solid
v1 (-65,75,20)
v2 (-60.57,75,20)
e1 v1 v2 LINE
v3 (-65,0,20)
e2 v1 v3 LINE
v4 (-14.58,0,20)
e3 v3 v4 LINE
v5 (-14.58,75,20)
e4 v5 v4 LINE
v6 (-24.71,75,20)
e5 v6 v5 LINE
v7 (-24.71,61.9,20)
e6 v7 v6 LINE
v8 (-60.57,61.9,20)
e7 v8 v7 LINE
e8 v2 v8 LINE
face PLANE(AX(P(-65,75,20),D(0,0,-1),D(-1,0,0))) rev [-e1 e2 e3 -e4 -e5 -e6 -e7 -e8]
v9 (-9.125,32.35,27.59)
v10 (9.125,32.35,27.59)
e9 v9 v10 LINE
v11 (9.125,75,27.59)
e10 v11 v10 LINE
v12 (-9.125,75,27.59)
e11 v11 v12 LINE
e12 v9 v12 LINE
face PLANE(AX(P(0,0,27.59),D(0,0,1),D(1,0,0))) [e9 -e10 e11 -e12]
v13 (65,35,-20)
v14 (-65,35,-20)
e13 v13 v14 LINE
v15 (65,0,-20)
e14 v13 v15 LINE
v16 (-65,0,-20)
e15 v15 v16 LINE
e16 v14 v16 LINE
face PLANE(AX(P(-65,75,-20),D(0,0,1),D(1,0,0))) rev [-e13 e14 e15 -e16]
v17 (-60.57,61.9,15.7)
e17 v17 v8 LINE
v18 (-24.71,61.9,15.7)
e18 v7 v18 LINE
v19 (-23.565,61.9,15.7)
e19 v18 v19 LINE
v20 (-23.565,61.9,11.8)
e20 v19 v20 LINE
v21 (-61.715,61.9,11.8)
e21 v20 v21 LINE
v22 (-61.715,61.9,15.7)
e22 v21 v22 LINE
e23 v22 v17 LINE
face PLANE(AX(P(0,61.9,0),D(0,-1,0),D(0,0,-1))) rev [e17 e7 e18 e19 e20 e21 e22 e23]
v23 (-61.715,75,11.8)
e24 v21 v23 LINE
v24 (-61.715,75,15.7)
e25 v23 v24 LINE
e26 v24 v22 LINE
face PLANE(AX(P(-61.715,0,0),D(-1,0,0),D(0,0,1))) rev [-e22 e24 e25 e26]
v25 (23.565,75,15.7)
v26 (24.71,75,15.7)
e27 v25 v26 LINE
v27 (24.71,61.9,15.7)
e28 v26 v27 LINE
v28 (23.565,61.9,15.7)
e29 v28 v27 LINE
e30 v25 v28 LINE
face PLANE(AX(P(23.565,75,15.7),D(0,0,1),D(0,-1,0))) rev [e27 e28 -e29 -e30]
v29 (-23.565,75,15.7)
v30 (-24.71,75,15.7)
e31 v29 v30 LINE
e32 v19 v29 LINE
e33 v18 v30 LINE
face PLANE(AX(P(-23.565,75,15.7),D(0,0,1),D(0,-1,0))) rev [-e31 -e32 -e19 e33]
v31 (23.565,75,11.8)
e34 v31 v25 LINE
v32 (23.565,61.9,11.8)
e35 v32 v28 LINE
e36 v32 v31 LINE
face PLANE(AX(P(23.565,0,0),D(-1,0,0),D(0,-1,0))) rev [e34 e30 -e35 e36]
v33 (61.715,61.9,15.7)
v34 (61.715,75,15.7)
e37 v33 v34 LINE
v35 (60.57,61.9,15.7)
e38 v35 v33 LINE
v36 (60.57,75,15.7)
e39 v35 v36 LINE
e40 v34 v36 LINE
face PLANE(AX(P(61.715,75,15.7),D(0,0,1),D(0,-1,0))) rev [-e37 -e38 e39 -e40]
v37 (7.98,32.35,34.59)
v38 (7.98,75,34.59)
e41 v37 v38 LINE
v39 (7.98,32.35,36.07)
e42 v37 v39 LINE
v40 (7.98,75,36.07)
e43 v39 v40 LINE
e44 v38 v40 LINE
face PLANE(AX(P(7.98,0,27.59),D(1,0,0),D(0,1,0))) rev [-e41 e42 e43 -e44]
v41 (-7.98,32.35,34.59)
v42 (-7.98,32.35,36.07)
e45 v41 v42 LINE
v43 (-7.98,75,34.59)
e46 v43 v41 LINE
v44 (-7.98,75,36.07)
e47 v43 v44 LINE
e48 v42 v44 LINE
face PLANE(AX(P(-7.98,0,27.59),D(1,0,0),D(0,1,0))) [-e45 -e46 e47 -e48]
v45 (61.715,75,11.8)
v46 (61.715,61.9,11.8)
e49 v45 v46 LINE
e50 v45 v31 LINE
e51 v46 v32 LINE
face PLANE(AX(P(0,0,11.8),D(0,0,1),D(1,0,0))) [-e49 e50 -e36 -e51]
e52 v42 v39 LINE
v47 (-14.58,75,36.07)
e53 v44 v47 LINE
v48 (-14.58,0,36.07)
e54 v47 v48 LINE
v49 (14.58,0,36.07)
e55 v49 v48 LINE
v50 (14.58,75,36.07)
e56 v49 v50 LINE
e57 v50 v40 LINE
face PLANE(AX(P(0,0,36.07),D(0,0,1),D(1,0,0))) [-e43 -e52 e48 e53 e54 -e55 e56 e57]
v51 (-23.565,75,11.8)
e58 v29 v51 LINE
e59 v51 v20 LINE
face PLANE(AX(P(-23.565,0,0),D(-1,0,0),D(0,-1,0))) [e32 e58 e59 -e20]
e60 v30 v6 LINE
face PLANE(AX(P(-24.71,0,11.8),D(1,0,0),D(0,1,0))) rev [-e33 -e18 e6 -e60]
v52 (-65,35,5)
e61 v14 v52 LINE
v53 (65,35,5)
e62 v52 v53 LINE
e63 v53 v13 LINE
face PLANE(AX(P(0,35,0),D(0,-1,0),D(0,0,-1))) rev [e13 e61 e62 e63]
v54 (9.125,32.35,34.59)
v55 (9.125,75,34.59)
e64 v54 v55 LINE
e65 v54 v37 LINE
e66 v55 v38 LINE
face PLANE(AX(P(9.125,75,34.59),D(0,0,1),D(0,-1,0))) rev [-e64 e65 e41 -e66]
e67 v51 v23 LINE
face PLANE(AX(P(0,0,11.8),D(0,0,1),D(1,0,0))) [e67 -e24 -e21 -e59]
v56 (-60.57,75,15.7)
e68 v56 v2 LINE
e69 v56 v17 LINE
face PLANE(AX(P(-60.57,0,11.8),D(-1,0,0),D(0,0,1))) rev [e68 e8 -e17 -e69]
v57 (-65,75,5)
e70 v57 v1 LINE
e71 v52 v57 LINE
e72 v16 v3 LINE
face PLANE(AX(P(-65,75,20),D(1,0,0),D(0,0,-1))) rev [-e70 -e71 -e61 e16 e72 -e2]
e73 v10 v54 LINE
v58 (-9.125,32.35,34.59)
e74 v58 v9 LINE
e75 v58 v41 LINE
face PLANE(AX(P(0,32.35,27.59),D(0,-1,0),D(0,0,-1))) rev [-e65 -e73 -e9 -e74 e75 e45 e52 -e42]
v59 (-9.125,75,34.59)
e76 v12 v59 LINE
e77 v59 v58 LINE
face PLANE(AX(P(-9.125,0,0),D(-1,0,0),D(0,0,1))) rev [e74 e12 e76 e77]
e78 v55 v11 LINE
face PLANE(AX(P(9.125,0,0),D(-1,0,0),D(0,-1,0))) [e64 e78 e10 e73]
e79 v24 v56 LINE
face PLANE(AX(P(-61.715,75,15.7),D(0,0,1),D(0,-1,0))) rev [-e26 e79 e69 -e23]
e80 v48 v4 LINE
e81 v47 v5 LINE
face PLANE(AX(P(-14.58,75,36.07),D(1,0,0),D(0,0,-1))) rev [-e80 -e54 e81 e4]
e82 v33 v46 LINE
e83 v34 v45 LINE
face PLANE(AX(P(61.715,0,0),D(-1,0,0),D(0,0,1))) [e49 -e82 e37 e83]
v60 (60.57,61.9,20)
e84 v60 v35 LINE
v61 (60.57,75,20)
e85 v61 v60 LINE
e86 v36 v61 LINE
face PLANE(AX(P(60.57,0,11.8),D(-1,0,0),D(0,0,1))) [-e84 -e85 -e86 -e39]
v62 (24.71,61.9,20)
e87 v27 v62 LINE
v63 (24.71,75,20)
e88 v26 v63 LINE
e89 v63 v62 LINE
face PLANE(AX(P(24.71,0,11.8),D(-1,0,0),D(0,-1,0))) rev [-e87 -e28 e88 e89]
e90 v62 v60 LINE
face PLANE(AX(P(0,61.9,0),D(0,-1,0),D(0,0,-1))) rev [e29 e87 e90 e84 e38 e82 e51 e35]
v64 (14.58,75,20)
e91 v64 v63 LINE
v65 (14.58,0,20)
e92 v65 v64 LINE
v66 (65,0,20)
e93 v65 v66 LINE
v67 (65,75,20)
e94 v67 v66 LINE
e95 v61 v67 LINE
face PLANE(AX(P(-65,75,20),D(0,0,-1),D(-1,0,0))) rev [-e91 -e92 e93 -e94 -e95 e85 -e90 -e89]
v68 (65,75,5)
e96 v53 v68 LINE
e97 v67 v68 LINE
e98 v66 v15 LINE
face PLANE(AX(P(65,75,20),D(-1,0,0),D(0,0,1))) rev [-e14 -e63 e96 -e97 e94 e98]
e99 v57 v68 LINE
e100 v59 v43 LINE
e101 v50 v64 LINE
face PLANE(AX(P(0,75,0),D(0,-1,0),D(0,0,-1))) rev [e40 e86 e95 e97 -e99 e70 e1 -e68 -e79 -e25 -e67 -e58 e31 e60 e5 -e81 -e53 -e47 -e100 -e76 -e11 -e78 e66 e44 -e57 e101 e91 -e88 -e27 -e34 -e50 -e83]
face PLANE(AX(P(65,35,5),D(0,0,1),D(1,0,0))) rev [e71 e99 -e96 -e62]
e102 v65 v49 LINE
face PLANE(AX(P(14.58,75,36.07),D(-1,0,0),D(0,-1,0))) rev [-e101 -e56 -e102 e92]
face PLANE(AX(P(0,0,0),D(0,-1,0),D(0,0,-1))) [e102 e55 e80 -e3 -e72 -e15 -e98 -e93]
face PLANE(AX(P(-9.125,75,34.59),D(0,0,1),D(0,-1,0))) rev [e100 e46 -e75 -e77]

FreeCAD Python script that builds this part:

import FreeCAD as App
import Part
import Sketcher

V = App.Vector
Q = App.Units.Quantity

doc = App.newDocument("Part")
body = doc.addObject("PartDesign::Body", "Body")

# Sketch on XZ plane
sketch1 = body.newObject("Sketcher::SketchObject", "Sketch")
sketch1.AttachmentSupport = (doc.getObject("XZ_Plane"), [""])
sketch1.MapMode = "FlatFace"
sketch1.addGeometry([
    Part.LineSegment(V(-65, -20, 0), V(-65, 20, 0)),
    Part.LineSegment(V(-65, 20, 0), V(65, 20, 0)),
    Part.LineSegment(V(65, 20, 0), V(65, -20, 0)),
    Part.LineSegment(V(65, -20, 0), V(-65, -20, 0)),
], False)
sketch1.addConstraint([
    Sketcher.Constraint("Coincident", 0, 2, 1, 1),
    Sketcher.Constraint("Coincident", 1, 2, 2, 1),
    Sketcher.Constraint("Coincident", 2, 2, 3, 1),
    Sketcher.Constraint("Coincident", 3, 2, 0, 1),
    Sketcher.Constraint("Vertical", 0),
    Sketcher.Constraint("Horizontal", 1),
    Sketcher.Constraint("Vertical", 2),
    Sketcher.Constraint("Horizontal", 3),
    Sketcher.Constraint("Symmetric", 0, 2, 2, 2, -1, 1),
    Sketcher.Constraint("DistanceX", 1, 1, 1, 2, Q("130 mm")),
    Sketcher.Constraint("DistanceY", 0, 1, 0, 2, Q("40 mm")),
])
pad1 = body.newObject("PartDesign::Pad", "Pad")
pad1.Profile = sketch1
pad1.Length = 75
pad1.Reversed = True

# Sketch on XY plane
sketch2 = body.newObject("Sketcher::SketchObject", "Sketch001")
sketch2.AttachmentSupport = (doc.getObject("XY_Plane"), [""])
sketch2.MapMode = "FlatFace"
sketch2.AttachmentOffset = App.Placement(V(0, 0, 20), App.Rotation())
sketch2.addGeometry([
    Part.LineSegment(V(-14.58, 75, 0), V(-14.58, 25.68, 0)),
    Part.LineSegment(V(-14.58, 25.68, 0), V(14.58, 25.68, 0)),
    Part.LineSegment(V(14.58, 25.68, 0), V(14.58, 75, 0)),
    Part.LineSegment(V(14.58, 75, 0), V(-14.58, 75, 0)),
], False)
sketch2.addConstraint([
    Sketcher.Constraint("Coincident", 0, 2, 1, 1),
    Sketcher.Constraint("Coincident", 1, 2, 2, 1),
    Sketcher.Constraint("Coincident", 2, 2, 3, 1),
    Sketcher.Constraint("Coincident", 3, 2, 0, 1),
    Sketcher.Constraint("Vertical", 0),
    Sketcher.Constraint("Horizontal", 1),
    Sketcher.Constraint("Vertical", 2),
    Sketcher.Constraint("Horizontal", 3),
    Sketcher.Constraint("DistanceY", -1, 1, 2, 2, Q("75 mm")),
    Sketcher.Constraint("DistanceX", 1, 1, 1, 2, Q("29.16 mm")),
    Sketcher.Constraint("DistanceY", 0, 2, 0, 1, Q("49.32 mm")),
    Sketcher.Constraint("DistanceX", 0, 2, -1, 1, Q("14.58 mm")),
])
pad2 = body.newObject("PartDesign::Pad", "Pad001")
pad2.Profile = sketch2
pad2.Length = 16.07

# Sketch on XY plane
sketch3 = body.newObject("Sketcher::SketchObject", "Sketch002")
sketch3.AttachmentSupport = (doc.getObject("XY_Plane"), [""])
sketch3.MapMode = "FlatFace"
sketch3.AttachmentOffset = App.Placement(V(0, 0, 36.07), App.Rotation())
sketch3.addGeometry([
    Part.LineSegment(V(-7.98, 75, 0), V(-7.98, 32.35, 0)),
    Part.LineSegment(V(-7.98, 32.35, 0), V(7.98, 32.35, 0)),
    Part.LineSegment(V(7.98, 32.35, 0), V(7.98, 75, 0)),
    Part.LineSegment(V(7.98, 75, 0), V(-7.98, 75, 0)),
], False)
sketch3.addConstraint([
    Sketcher.Constraint("Coincident", 0, 2, 1, 1),
    Sketcher.Constraint("Coincident", 1, 2, 2, 1),
    Sketcher.Constraint("Coincident", 2, 2, 3, 1),
    Sketcher.Constraint("Coincident", 3, 2, 0, 1),
    Sketcher.Constraint("Vertical", 0),
    Sketcher.Constraint("Horizontal", 1),
    Sketcher.Constraint("Vertical", 2),
    Sketcher.Constraint("Horizontal", 3),
    Sketcher.Constraint("DistanceY", -1, 1, 2, 2, Q("75 mm")),
    Sketcher.Constraint("DistanceX", 1, 1, 1, 2, Q("15.96 mm")),
    Sketcher.Constraint("DistanceY", 0, 2, 0, 1, Q("42.65 mm")),
    Sketcher.Constraint("DistanceX", 0, 2, -1, 1, Q("7.98 mm")),
])
pocket1 = body.newObject("PartDesign::Pocket", "Pocket")
pocket1.Profile = sketch3
pocket1.Length = 8.48

# Sketch on YZ plane
sketch4 = body.newObject("Sketcher::SketchObject", "Sketch003")
sketch4.AttachmentSupport = (doc.getObject("YZ_Plane"), [""])
sketch4.MapMode = "FlatFace"
sketch4.AttachmentOffset = App.Placement(V(0, 0, -7.98), App.Rotation())
sketch4.addGeometry([
    Part.LineSegment(V(75, 34.59, 0), V(32.35, 34.59, 0)),
    Part.LineSegment(V(32.35, 34.59, 0), V(32.35, 27.59, 0)),
    Part.LineSegment(V(32.35, 27.59, 0), V(75, 27.59, 0)),
    Part.LineSegment(V(75, 27.59, 0), V(75, 34.59, 0)),
], False)
sketch4.addConstraint([
    Sketcher.Constraint("Coincident", 0, 2, 1, 1),
    Sketcher.Constraint("Coincident", 1, 2, 2, 1),
    Sketcher.Constraint("Coincident", 2, 2, 3, 1),
    Sketcher.Constraint("Coincident", 3, 2, 0, 1),
    Sketcher.Constraint("Horizontal", 0),
    Sketcher.Constraint("Vertical", 1),
    Sketcher.Constraint("Horizontal", 2),
    Sketcher.Constraint("Vertical", 3),
    Sketcher.Constraint("DistanceY", 1, 2, 1, 1, Q("7 mm")),
    Sketcher.Constraint("DistanceX", -1, 1, 2, 2, Q("75 mm")),
    Sketcher.Constraint("DistanceX", 0, 2, 0, 1, Q("42.65 mm")),
    Sketcher.Constraint("DistanceY", -1, 1, 0, 2, Q("34.59 mm")),
])
pocket2 = body.newObject("PartDesign::Pocket", "Pocket001")
pocket2.Profile = sketch4
pocket2.Length = 1.145

# Sketch on YZ plane
sketch5 = body.newObject("Sketcher::SketchObject", "Sketch004")
sketch5.AttachmentSupport = (doc.getObject("YZ_Plane"), [""])
sketch5.MapMode = "FlatFace"
sketch5.AttachmentOffset = App.Placement(V(0, 0, 7.98), App.Rotation())
sketch5.addGeometry([
    Part.LineSegment(V(75, 27.59, 0), V(32.35, 27.59, 0)),
    Part.LineSegment(V(32.35, 27.59, 0), V(32.35, 34.59, 0)),
    Part.LineSegment(V(32.35, 34.59, 0), V(75, 34.59, 0)),
    Part.LineSegment(V(75, 34.59, 0), V(75, 27.59, 0)),
], False)
sketch5.addConstraint([
    Sketcher.Constraint("Coincident", 0, 2, 1, 1),
    Sketcher.Constraint("Coincident", 1, 2, 2, 1),
    Sketcher.Constraint("Coincident", 2, 2, 3, 1),
    Sketcher.Constraint("Coincident", 3, 2, 0, 1),
    Sketcher.Constraint("Horizontal", 0),
    Sketcher.Constraint("Vertical", 1),
    Sketcher.Constraint("Horizontal", 2),
    Sketcher.Constraint("Vertical", 3),
    Sketcher.Constraint("DistanceY", 1, 1, 1, 2, Q("7 mm")),
    Sketcher.Constraint("DistanceX", -1, 1, 2, 2, Q("75 mm")),
    Sketcher.Constraint("DistanceX", 0, 2, 0, 1, Q("42.65 mm")),
    Sketcher.Constraint("DistanceY", -1, 1, 0, 2, Q("27.59 mm")),
])
pocket3 = body.newObject("PartDesign::Pocket", "Pocket002")
pocket3.Profile = sketch5
pocket3.Length = 1.145
pocket3.Reversed = True

# Sketch on XY plane
sketch6 = body.newObject("Sketcher::SketchObject", "Sketch005")
sketch6.AttachmentSupport = (doc.getObject("XY_Plane"), [""])
sketch6.MapMode = "FlatFace"
sketch6.AttachmentOffset = App.Placement(V(0, 0, 20), App.Rotation())
sketch6.addGeometry([
    Part.LineSegment(V(24.71, 75, 0), V(24.71, 53.9, 0)),
    Part.LineSegment(V(24.71, 53.9, 0), V(60.57, 53.9, 0)),
    Part.LineSegment(V(60.57, 53.9, 0), V(60.57, 75, 0)),
    Part.LineSegment(V(60.57, 75, 0), V(24.71, 75, 0)),
], False)
sketch6.addConstraint([
    Sketcher.Constraint("Coincident", 0, 2, 1, 1),
    Sketcher.Constraint("Coincident", 1, 2, 2, 1),
    Sketcher.Constraint("Coincident", 2, 2, 3, 1),
    Sketcher.Constraint("Coincident", 3, 2, 0, 1),
    Sketcher.Constraint("Vertical", 0),
    Sketcher.Constraint("Horizontal", 1),
    Sketcher.Constraint("Vertical", 2),
    Sketcher.Constraint("Horizontal", 3),
    Sketcher.Constraint("DistanceY", 0, 2, 0, 1, Q("21.1 mm")),
    Sketcher.Constraint("DistanceY", -1, 1, 2, 2, Q("75 mm")),
    Sketcher.Constraint("DistanceX", 1, 1, 1, 2, Q("35.86 mm")),
    Sketcher.Constraint("DistanceX", -1, 1, 0, 2, Q("24.71 mm")),
])
pocket4 = body.newObject("PartDesign::Pocket", "Pocket003")
pocket4.Profile = sketch6
pocket4.Length = 8.2

# Sketch on YZ plane
sketch7 = body.newObject("Sketcher::SketchObject", "Sketch006")
sketch7.AttachmentSupport = (doc.getObject("YZ_Plane"), [""])
sketch7.MapMode = "FlatFace"
sketch7.AttachmentOffset = App.Placement(V(0, 0, 24.71), App.Rotation())
sketch7.addGeometry([
    Part.LineSegment(V(75, 15.7, 0), V(53.9, 15.7, 0)),
    Part.LineSegment(V(53.9, 15.7, 0), V(53.9, 11.8, 0)),
    Part.LineSegment(V(53.9, 11.8, 0), V(75, 11.8, 0)),
    Part.LineSegment(V(75, 11.8, 0), V(75, 15.7, 0)),
], False)
sketch7.addConstraint([
    Sketcher.Constraint("Coincident", 0, 2, 1, 1),
    Sketcher.Constraint("Coincident", 1, 2, 2, 1),
    Sketcher.Constraint("Coincident", 2, 2, 3, 1),
    Sketcher.Constraint("Coincident", 3, 2, 0, 1),
    Sketcher.Constraint("Horizontal", 0),
    Sketcher.Constraint("Vertical", 1),
    Sketcher.Constraint("Horizontal", 2),
    Sketcher.Constraint("Vertical", 3),
    Sketcher.Constraint("DistanceX", 0, 2, 0, 1, Q("21.1 mm")),
    Sketcher.Constraint("DistanceY", 1, 2, 1, 1, Q("3.9 mm")),
    Sketcher.Constraint("DistanceX", -1, 1, 2, 2, Q("75 mm")),
    Sketcher.Constraint("DistanceY", -1, 1, 0, 2, Q("15.7 mm")),
])
pocket5 = body.newObject("PartDesign::Pocket", "Pocket004")
pocket5.Profile = sketch7
pocket5.Length = 1.145

# Sketch on YZ plane
sketch8 = body.newObject("Sketcher::SketchObject", "Sketch007")
sketch8.AttachmentSupport = (doc.getObject("YZ_Plane"), [""])
sketch8.MapMode = "FlatFace"
sketch8.AttachmentOffset = App.Placement(V(0, 0, 60.57), App.Rotation())
sketch8.addGeometry([
    Part.LineSegment(V(75, 11.8, 0), V(53.9, 11.8, 0)),
    Part.LineSegment(V(53.9, 11.8, 0), V(53.9, 15.7, 0)),
    Part.LineSegment(V(53.9, 15.7, 0), V(75, 15.7, 0)),
    Part.LineSegment(V(75, 15.7, 0), V(75, 11.8, 0)),
], False)
sketch8.addConstraint([
    Sketcher.Constraint("Coincident", 0, 2, 1, 1),
    Sketcher.Constraint("Coincident", 1, 2, 2, 1),
    Sketcher.Constraint("Coincident", 2, 2, 3, 1),
    Sketcher.Constraint("Coincident", 3, 2, 0, 1),
    Sketcher.Constraint("Horizontal", 0),
    Sketcher.Constraint("Vertical", 1),
    Sketcher.Constraint("Horizontal", 2),
    Sketcher.Constraint("Vertical", 3),
    Sketcher.Constraint("DistanceX", 0, 2, 0, 1, Q("21.1 mm")),
    Sketcher.Constraint("DistanceY", 1, 1, 1, 2, Q("3.9 mm")),
    Sketcher.Constraint("DistanceX", -1, 1, 2, 2, Q("75 mm")),
    Sketcher.Constraint("DistanceY", -1, 1, 0, 2, Q("11.8 mm")),
])
pocket6 = body.newObject("PartDesign::Pocket", "Pocket005")
pocket6.Profile = sketch8
pocket6.Length = 1.145
pocket6.Reversed = True

# Sketch on XY plane
sketch9 = body.newObject("Sketcher::SketchObject", "Sketch008")
sketch9.AttachmentSupport = (doc.getObject("XY_Plane"), [""])
sketch9.MapMode = "FlatFace"
sketch9.AttachmentOffset = App.Placement(V(0, 0, 20), App.Rotation())
sketch9.addGeometry([
    Part.LineSegment(V(-60.57, 75, 0), V(-60.57, 53.9, 0)),
    Part.LineSegment(V(-60.57, 53.9, 0), V(-24.71, 53.9, 0)),
    Part.LineSegment(V(-24.71, 53.9, 0), V(-24.71, 75, 0)),
    Part.LineSegment(V(-24.71, 75, 0), V(-60.57, 75, 0)),
], False)
sketch9.addConstraint([
    Sketcher.Constraint("Coincident", 0, 2, 1, 1),
    Sketcher.Constraint("Coincident", 1, 2, 2, 1),
    Sketcher.Constraint("Coincident", 2, 2, 3, 1),
    Sketcher.Constraint("Coincident", 3, 2, 0, 1),
    Sketcher.Constraint("Vertical", 0),
    Sketcher.Constraint("Horizontal", 1),
    Sketcher.Constraint("Vertical", 2),
    Sketcher.Constraint("Horizontal", 3),
    Sketcher.Constraint("DistanceY", 0, 2, 0, 1, Q("21.1 mm")),
    Sketcher.Constraint("DistanceY", -1, 1, 2, 2, Q("75 mm")),
    Sketcher.Constraint("DistanceX", 1, 1, 1, 2, Q("35.86 mm")),
    Sketcher.Constraint("DistanceX", 0, 2, -1, 1, Q("60.57 mm")),
])
pocket7 = body.newObject("PartDesign::Pocket", "Pocket006")
pocket7.Profile = sketch9
pocket7.Length = 8.2

# Sketch on YZ plane
sketch10 = body.newObject("Sketcher::SketchObject", "Sketch009")
sketch10.AttachmentSupport = (doc.getObject("YZ_Plane"), [""])
sketch10.MapMode = "FlatFace"
sketch10.AttachmentOffset = App.Placement(V(0, 0, -60.57), App.Rotation())
sketch10.addGeometry([
    Part.LineSegment(V(75, 15.7, 0), V(53.9, 15.7, 0)),
    Part.LineSegment(V(53.9, 15.7, 0), V(53.9, 11.8, 0)),
    Part.LineSegment(V(53.9, 11.8, 0), V(75, 11.8, 0)),
    Part.LineSegment(V(75, 11.8, 0), V(75, 15.7, 0)),
], False)
sketch10.addConstraint([
    Sketcher.Constraint("Coincident", 0, 2, 1, 1),
    Sketcher.Constraint("Coincident", 1, 2, 2, 1),
    Sketcher.Constraint("Coincident", 2, 2, 3, 1),
    Sketcher.Constraint("Coincident", 3, 2, 0, 1),
    Sketcher.Constraint("Horizontal", 0),
    Sketcher.Constraint("Vertical", 1),
    Sketcher.Constraint("Horizontal", 2),
    Sketcher.Constraint("Vertical", 3),
    Sketcher.Constraint("DistanceX", 0, 2, 0, 1, Q("21.1 mm")),
    Sketcher.Constraint("DistanceY", 1, 2, 1, 1, Q("3.9 mm")),
    Sketcher.Constraint("DistanceX", -1, 1, 2, 2, Q("75 mm")),
    Sketcher.Constraint("DistanceY", -1, 1, 0, 2, Q("15.7 mm")),
])
pocket8 = body.newObject("PartDesign::Pocket", "Pocket007")
pocket8.Profile = sketch10
pocket8.Length = 1.145

# Sketch on YZ plane
sketch11 = body.newObject("Sketcher::SketchObject", "Sketch010")
sketch11.AttachmentSupport = (doc.getObject("YZ_Plane"), [""])
sketch11.MapMode = "FlatFace"
sketch11.AttachmentOffset = App.Placement(V(0, 0, -24.71), App.Rotation())
sketch11.addGeometry([
    Part.LineSegment(V(75, 11.8, 0), V(53.9, 11.8, 0)),
    Part.LineSegment(V(53.9, 11.8, 0), V(53.9, 15.7, 0)),
    Part.LineSegment(V(53.9, 15.7, 0), V(75, 15.7, 0)),
    Part.LineSegment(V(75, 15.7, 0), V(75, 11.8, 0)),
], False)
sketch11.addConstraint([
    Sketcher.Constraint("Coincident", 0, 2, 1, 1),
    Sketcher.Constraint("Coincident", 1, 2, 2, 1),
    Sketcher.Constraint("Coincident", 2, 2, 3, 1),
    Sketcher.Constraint("Coincident", 3, 2, 0, 1),
    Sketcher.Constraint("Horizontal", 0),
    Sketcher.Constraint("Vertical", 1),
    Sketcher.Constraint("Horizontal", 2),
    Sketcher.Constraint("Vertical", 3),
    Sketcher.Constraint("DistanceX", 0, 2, 0, 1, Q("21.1 mm")),
    Sketcher.Constraint("DistanceY", 1, 1, 1, 2, Q("3.9 mm")),
    Sketcher.Constraint("DistanceX", -1, 1, 2, 2, Q("75 mm")),
    Sketcher.Constraint("DistanceY", -1, 1, 0, 2, Q("11.8 mm")),
])
pocket9 = body.newObject("PartDesign::Pocket", "Pocket008")
pocket9.Profile = sketch11
pocket9.Length = 1.145
pocket9.Reversed = True

# Sketch on XZ plane
sketch12 = body.newObject("Sketcher::SketchObject", "Sketch011")
sketch12.AttachmentSupport = (doc.getObject("XZ_Plane"), [""])
sketch12.MapMode = "FlatFace"
sketch12.AttachmentOffset = App.Placement(V(0, 0, -25.68), App.Rotation())
sketch12.addGeometry([
    Part.LineSegment(V(14.58, 20, 0), V(14.58, 36.07, 0)),
    Part.LineSegment(V(14.58, 36.07, 0), V(-14.58, 36.07, 0)),
    Part.LineSegment(V(-14.58, 36.07, 0), V(-14.58, 20, 0)),
    Part.LineSegment(V(-14.58, 20, 0), V(14.58, 20, 0)),
], False)
sketch12.addConstraint([
    Sketcher.Constraint("Coincident", 0, 2, 1, 1),
    Sketcher.Constraint("Coincident", 1, 2, 2, 1),
    Sketcher.Constraint("Coincident", 2, 2, 3, 1),
    Sketcher.Constraint("Coincident", 3, 2, 0, 1),
    Sketcher.Constraint("Vertical", 0),
    Sketcher.Constraint("Horizontal", 1),
    Sketcher.Constraint("Vertical", 2),
    Sketcher.Constraint("Horizontal", 3),
    Sketcher.Constraint("DistanceY", -1, 1, 2, 2, Q("20 mm")),
    Sketcher.Constraint("DistanceX", 1, 2, 1, 1, Q("29.16 mm")),
    Sketcher.Constraint("DistanceY", 0, 1, 0, 2, Q("16.07 mm")),
    Sketcher.Constraint("DistanceX", -1, 1, 0, 2, Q("14.58 mm")),
])
pad3 = body.newObject("PartDesign::Pad", "Pad002")
pad3.Profile = sketch12
pad3.Length = 25.68

# Sketch on XZ plane
sketch13 = body.newObject("Sketcher::SketchObject", "Sketch012")
sketch13.AttachmentSupport = (doc.getObject("XZ_Plane"), [""])
sketch13.MapMode = "FlatFace"
sketch13.AttachmentOffset = App.Placement(V(0, 0, -75), App.Rotation())
sketch13.addGeometry([
    Part.LineSegment(V(25, -20, 0), V(25, 5, 0)),  # 0
    Part.LineSegment(V(25, 5, 0), V(65, 5, 0)),  # 1
    Part.LineSegment(V(65, 5, 0), V(65, -20, 0)),  # 2
    Part.LineSegment(V(65, -20, 0), V(25, -20, 0)),  # 3
    Part.LineSegment(V(-65, -20, 0), V(-65, 5, 0)),  # 4
    Part.LineSegment(V(-65, 5, 0), V(-25, 5, 0)),  # 5
    Part.LineSegment(V(-25, 5, 0), V(-25, -20, 0)),  # 6
    Part.LineSegment(V(-25, -20, 0), V(-65, -20, 0)),  # 7
], False)
sketch13.addConstraint([
    Sketcher.Constraint("Coincident", 0, 2, 1, 1),
    Sketcher.Constraint("Coincident", 1, 2, 2, 1),
    Sketcher.Constraint("Coincident", 2, 2, 3, 1),
    Sketcher.Constraint("Coincident", 3, 2, 0, 1),
    Sketcher.Constraint("Coincident", 4, 2, 5, 1),
    Sketcher.Constraint("Coincident", 5, 2, 6, 1),
    Sketcher.Constraint("Coincident", 6, 2, 7, 1),
    Sketcher.Constraint("Coincident", 7, 2, 4, 1),
    Sketcher.Constraint("Vertical", 0),
    Sketcher.Constraint("Horizontal", 1),
    Sketcher.Constraint("Vertical", 2),
    Sketcher.Constraint("Horizontal", 3),
    Sketcher.Constraint("Vertical", 4),
    Sketcher.Constraint("Horizontal", 5),
    Sketcher.Constraint("Vertical", 6),
    Sketcher.Constraint("Horizontal", 7),
    Sketcher.Constraint("Symmetric", 1, 2, 4, 2, -2),
    Sketcher.Constraint("Symmetric", 3, 2, 6, 2, -2),
    Sketcher.Constraint("DistanceX", 1, 1, 1, 2, Q("40 mm")),
    Sketcher.Constraint("DistanceY", 0, 1, 0, 2, Q("25 mm")),
    Sketcher.Constraint("DistanceX", -1, 1, 0, 2, Q("25 mm")),
    Sketcher.Constraint("DistanceY", -1, 1, 0, 2, Q("5 mm")),
])
pocket10 = body.newObject("PartDesign::Pocket", "Pocket009")
pocket10.Profile = sketch13
pocket10.Length = 40
pocket10.Reversed = True

# Sketch on XZ plane
sketch14 = body.newObject("Sketcher::SketchObject", "Sketch013")
sketch14.AttachmentSupport = (doc.getObject("XZ_Plane"), [""])
sketch14.MapMode = "FlatFace"
sketch14.AttachmentOffset = App.Placement(V(0, 0, -75), App.Rotation())
sketch14.addGeometry([
    Part.LineSegment(V(-25, -20, 0), V(-25, 5, 0)),
    Part.LineSegment(V(-25, 5, 0), V(25, 5, 0)),
    Part.LineSegment(V(25, 5, 0), V(25, -20, 0)),
    Part.LineSegment(V(25, -20, 0), V(-25, -20, 0)),
], False)
sketch14.addConstraint([
    Sketcher.Constraint("Coincident", 0, 2, 1, 1),
    Sketcher.Constraint("Coincident", 1, 2, 2, 1),
    Sketcher.Constraint("Coincident", 2, 2, 3, 1),
    Sketcher.Constraint("Coincident", 3, 2, 0, 1),
    Sketcher.Constraint("Vertical", 0),
    Sketcher.Constraint("Horizontal", 1),
    Sketcher.Constraint("Vertical", 2),
    Sketcher.Constraint("Horizontal", 3),
    Sketcher.Constraint("DistanceX", 1, 1, 1, 2, Q("50 mm")),
    Sketcher.Constraint("DistanceY", 0, 1, 0, 2, Q("25 mm")),
    Sketcher.Constraint("DistanceX", 0, 2, -1, 1, Q("25 mm")),
    Sketcher.Constraint("DistanceY", -1, 1, 0, 2, Q("5 mm")),
])
pocket11 = body.newObject("PartDesign::Pocket", "Pocket010")
pocket11.Profile = sketch14
pocket11.Length = 40
pocket11.Reversed = True

# Sketch on XZ plane
sketch15 = body.newObject("Sketcher::SketchObject", "Sketch014")
sketch15.AttachmentSupport = (doc.getObject("XZ_Plane"), [""])
sketch15.MapMode = "FlatFace"
sketch15.AttachmentOffset = App.Placement(V(0, 0, -53.9), App.Rotation())
sketch15.addGeometry([
    Part.LineSegment(V(-60.57, 15.7, 0), V(-60.57, 20, 0)),  # 0
    Part.LineSegment(V(-60.57, 20, 0), V(-24.71, 20, 0)),  # 1
    Part.LineSegment(V(-24.71, 20, 0), V(-24.71, 15.7, 0)),  # 2
    Part.LineSegment(V(-24.71, 15.7, 0), V(-23.565, 15.7, 0)),  # 3
    Part.LineSegment(V(-23.565, 15.7, 0), V(-23.565, 11.8, 0)),  # 4
    Part.LineSegment(V(-23.565, 11.8, 0), V(-61.715, 11.8, 0)),  # 5
    Part.LineSegment(V(-61.715, 11.8, 0), V(-61.715, 15.7, 0)),  # 6
    Part.LineSegment(V(-61.715, 15.7, 0), V(-60.57, 15.7, 0)),  # 7
], False)
sketch15.addConstraint([
    Sketcher.Constraint("Coincident", 0, 2, 1, 1),
    Sketcher.Constraint("Coincident", 1, 2, 2, 1),
    Sketcher.Constraint("Coincident", 2, 2, 3, 1),
    Sketcher.Constraint("Coincident", 3, 2, 4, 1),
    Sketcher.Constraint("Coincident", 4, 2, 5, 1),
    Sketcher.Constraint("Coincident", 5, 2, 6, 1),
    Sketcher.Constraint("Coincident", 6, 2, 7, 1),
    Sketcher.Constraint("Coincident", 7, 2, 0, 1),
    Sketcher.Constraint("Vertical", 0),
    Sketcher.Constraint("Horizontal", 1),
    Sketcher.Constraint("Vertical", 2),
    Sketcher.Constraint("Horizontal", 3),
    Sketcher.Constraint("Vertical", 4),
    Sketcher.Constraint("Horizontal", 5),
    Sketcher.Constraint("Vertical", 6),
    Sketcher.Constraint("Horizontal", 7),
    Sketcher.Constraint("Horizontal", 3, 2, 6, 2),
    Sketcher.Constraint("Equal", 3, 7),
    Sketcher.Constraint("DistanceY", 0, 1, 0, 2, Q("4.3 mm")),
    Sketcher.Constraint("DistanceY", 4, 2, 4, 1, Q("3.9 mm")),
    Sketcher.Constraint("DistanceY", -1, 1, 0, 2, Q("20 mm")),
    Sketcher.Constraint("DistanceX", 1, 1, 1, 2, Q("35.86 mm")),
    Sketcher.Constraint("DistanceX", 5, 2, 5, 1, Q("38.15 mm")),
    Sketcher.Constraint("DistanceX", 0, 2, -1, 1, Q("60.57 mm")),
])
pad4 = body.newObject("PartDesign::Pad", "Pad003")
pad4.Profile = sketch15
pad4.Length = 8
pad4.Reversed = True

# Sketch on XZ plane
sketch16 = body.newObject("Sketcher::SketchObject", "Sketch015")
sketch16.AttachmentSupport = (doc.getObject("XZ_Plane"), [""])
sketch16.MapMode = "FlatFace"
sketch16.AttachmentOffset = App.Placement(V(0, 0, -53.9), App.Rotation())
sketch16.addGeometry([
    Part.LineSegment(V(24.71, 15.7, 0), V(24.71, 20, 0)),  # 0
    Part.LineSegment(V(24.71, 20, 0), V(60.57, 20, 0)),  # 1
    Part.LineSegment(V(60.57, 20, 0), V(60.57, 15.7, 0)),  # 2
    Part.LineSegment(V(60.57, 15.7, 0), V(61.715, 15.7, 0)),  # 3
    Part.LineSegment(V(61.715, 15.7, 0), V(61.715, 11.8, 0)),  # 4
    Part.LineSegment(V(61.715, 11.8, 0), V(23.565, 11.8, 0)),  # 5
    Part.LineSegment(V(23.565, 11.8, 0), V(23.565, 15.7, 0)),  # 6
    Part.LineSegment(V(23.565, 15.7, 0), V(24.71, 15.7, 0)),  # 7
], False)
sketch16.addConstraint([
    Sketcher.Constraint("Coincident", 0, 2, 1, 1),
    Sketcher.Constraint("Coincident", 1, 2, 2, 1),
    Sketcher.Constraint("Coincident", 2, 2, 3, 1),
    Sketcher.Constraint("Coincident", 3, 2, 4, 1),
    Sketcher.Constraint("Coincident", 4, 2, 5, 1),
    Sketcher.Constraint("Coincident", 5, 2, 6, 1),
    Sketcher.Constraint("Coincident", 6, 2, 7, 1),
    Sketcher.Constraint("Coincident", 7, 2, 0, 1),
    Sketcher.Constraint("Vertical", 0),
    Sketcher.Constraint("Horizontal", 1),
    Sketcher.Constraint("Vertical", 2),
    Sketcher.Constraint("Horizontal", 3),
    Sketcher.Constraint("Vertical", 4),
    Sketcher.Constraint("Horizontal", 5),
    Sketcher.Constraint("Vertical", 6),
    Sketcher.Constraint("Horizontal", 7),
    Sketcher.Constraint("Horizontal", 3, 2, 6, 2),
    Sketcher.Constraint("Equal", 3, 7),
    Sketcher.Constraint("DistanceY", 0, 1, 0, 2, Q("4.3 mm")),
    Sketcher.Constraint("DistanceY", 4, 2, 4, 1, Q("3.9 mm")),
    Sketcher.Constraint("DistanceY", -1, 1, 0, 2, Q("20 mm")),
    Sketcher.Constraint("DistanceX", 1, 1, 1, 2, Q("35.86 mm")),
    Sketcher.Constraint("DistanceX", 5, 2, 5, 1, Q("38.15 mm")),
    Sketcher.Constraint("DistanceX", -1, 1, 0, 2, Q("24.71 mm")),
])
pad5 = body.newObject("PartDesign::Pad", "Pad004")
pad5.Profile = sketch16
pad5.Length = 8
pad5.Reversed = True

doc.recompute()
